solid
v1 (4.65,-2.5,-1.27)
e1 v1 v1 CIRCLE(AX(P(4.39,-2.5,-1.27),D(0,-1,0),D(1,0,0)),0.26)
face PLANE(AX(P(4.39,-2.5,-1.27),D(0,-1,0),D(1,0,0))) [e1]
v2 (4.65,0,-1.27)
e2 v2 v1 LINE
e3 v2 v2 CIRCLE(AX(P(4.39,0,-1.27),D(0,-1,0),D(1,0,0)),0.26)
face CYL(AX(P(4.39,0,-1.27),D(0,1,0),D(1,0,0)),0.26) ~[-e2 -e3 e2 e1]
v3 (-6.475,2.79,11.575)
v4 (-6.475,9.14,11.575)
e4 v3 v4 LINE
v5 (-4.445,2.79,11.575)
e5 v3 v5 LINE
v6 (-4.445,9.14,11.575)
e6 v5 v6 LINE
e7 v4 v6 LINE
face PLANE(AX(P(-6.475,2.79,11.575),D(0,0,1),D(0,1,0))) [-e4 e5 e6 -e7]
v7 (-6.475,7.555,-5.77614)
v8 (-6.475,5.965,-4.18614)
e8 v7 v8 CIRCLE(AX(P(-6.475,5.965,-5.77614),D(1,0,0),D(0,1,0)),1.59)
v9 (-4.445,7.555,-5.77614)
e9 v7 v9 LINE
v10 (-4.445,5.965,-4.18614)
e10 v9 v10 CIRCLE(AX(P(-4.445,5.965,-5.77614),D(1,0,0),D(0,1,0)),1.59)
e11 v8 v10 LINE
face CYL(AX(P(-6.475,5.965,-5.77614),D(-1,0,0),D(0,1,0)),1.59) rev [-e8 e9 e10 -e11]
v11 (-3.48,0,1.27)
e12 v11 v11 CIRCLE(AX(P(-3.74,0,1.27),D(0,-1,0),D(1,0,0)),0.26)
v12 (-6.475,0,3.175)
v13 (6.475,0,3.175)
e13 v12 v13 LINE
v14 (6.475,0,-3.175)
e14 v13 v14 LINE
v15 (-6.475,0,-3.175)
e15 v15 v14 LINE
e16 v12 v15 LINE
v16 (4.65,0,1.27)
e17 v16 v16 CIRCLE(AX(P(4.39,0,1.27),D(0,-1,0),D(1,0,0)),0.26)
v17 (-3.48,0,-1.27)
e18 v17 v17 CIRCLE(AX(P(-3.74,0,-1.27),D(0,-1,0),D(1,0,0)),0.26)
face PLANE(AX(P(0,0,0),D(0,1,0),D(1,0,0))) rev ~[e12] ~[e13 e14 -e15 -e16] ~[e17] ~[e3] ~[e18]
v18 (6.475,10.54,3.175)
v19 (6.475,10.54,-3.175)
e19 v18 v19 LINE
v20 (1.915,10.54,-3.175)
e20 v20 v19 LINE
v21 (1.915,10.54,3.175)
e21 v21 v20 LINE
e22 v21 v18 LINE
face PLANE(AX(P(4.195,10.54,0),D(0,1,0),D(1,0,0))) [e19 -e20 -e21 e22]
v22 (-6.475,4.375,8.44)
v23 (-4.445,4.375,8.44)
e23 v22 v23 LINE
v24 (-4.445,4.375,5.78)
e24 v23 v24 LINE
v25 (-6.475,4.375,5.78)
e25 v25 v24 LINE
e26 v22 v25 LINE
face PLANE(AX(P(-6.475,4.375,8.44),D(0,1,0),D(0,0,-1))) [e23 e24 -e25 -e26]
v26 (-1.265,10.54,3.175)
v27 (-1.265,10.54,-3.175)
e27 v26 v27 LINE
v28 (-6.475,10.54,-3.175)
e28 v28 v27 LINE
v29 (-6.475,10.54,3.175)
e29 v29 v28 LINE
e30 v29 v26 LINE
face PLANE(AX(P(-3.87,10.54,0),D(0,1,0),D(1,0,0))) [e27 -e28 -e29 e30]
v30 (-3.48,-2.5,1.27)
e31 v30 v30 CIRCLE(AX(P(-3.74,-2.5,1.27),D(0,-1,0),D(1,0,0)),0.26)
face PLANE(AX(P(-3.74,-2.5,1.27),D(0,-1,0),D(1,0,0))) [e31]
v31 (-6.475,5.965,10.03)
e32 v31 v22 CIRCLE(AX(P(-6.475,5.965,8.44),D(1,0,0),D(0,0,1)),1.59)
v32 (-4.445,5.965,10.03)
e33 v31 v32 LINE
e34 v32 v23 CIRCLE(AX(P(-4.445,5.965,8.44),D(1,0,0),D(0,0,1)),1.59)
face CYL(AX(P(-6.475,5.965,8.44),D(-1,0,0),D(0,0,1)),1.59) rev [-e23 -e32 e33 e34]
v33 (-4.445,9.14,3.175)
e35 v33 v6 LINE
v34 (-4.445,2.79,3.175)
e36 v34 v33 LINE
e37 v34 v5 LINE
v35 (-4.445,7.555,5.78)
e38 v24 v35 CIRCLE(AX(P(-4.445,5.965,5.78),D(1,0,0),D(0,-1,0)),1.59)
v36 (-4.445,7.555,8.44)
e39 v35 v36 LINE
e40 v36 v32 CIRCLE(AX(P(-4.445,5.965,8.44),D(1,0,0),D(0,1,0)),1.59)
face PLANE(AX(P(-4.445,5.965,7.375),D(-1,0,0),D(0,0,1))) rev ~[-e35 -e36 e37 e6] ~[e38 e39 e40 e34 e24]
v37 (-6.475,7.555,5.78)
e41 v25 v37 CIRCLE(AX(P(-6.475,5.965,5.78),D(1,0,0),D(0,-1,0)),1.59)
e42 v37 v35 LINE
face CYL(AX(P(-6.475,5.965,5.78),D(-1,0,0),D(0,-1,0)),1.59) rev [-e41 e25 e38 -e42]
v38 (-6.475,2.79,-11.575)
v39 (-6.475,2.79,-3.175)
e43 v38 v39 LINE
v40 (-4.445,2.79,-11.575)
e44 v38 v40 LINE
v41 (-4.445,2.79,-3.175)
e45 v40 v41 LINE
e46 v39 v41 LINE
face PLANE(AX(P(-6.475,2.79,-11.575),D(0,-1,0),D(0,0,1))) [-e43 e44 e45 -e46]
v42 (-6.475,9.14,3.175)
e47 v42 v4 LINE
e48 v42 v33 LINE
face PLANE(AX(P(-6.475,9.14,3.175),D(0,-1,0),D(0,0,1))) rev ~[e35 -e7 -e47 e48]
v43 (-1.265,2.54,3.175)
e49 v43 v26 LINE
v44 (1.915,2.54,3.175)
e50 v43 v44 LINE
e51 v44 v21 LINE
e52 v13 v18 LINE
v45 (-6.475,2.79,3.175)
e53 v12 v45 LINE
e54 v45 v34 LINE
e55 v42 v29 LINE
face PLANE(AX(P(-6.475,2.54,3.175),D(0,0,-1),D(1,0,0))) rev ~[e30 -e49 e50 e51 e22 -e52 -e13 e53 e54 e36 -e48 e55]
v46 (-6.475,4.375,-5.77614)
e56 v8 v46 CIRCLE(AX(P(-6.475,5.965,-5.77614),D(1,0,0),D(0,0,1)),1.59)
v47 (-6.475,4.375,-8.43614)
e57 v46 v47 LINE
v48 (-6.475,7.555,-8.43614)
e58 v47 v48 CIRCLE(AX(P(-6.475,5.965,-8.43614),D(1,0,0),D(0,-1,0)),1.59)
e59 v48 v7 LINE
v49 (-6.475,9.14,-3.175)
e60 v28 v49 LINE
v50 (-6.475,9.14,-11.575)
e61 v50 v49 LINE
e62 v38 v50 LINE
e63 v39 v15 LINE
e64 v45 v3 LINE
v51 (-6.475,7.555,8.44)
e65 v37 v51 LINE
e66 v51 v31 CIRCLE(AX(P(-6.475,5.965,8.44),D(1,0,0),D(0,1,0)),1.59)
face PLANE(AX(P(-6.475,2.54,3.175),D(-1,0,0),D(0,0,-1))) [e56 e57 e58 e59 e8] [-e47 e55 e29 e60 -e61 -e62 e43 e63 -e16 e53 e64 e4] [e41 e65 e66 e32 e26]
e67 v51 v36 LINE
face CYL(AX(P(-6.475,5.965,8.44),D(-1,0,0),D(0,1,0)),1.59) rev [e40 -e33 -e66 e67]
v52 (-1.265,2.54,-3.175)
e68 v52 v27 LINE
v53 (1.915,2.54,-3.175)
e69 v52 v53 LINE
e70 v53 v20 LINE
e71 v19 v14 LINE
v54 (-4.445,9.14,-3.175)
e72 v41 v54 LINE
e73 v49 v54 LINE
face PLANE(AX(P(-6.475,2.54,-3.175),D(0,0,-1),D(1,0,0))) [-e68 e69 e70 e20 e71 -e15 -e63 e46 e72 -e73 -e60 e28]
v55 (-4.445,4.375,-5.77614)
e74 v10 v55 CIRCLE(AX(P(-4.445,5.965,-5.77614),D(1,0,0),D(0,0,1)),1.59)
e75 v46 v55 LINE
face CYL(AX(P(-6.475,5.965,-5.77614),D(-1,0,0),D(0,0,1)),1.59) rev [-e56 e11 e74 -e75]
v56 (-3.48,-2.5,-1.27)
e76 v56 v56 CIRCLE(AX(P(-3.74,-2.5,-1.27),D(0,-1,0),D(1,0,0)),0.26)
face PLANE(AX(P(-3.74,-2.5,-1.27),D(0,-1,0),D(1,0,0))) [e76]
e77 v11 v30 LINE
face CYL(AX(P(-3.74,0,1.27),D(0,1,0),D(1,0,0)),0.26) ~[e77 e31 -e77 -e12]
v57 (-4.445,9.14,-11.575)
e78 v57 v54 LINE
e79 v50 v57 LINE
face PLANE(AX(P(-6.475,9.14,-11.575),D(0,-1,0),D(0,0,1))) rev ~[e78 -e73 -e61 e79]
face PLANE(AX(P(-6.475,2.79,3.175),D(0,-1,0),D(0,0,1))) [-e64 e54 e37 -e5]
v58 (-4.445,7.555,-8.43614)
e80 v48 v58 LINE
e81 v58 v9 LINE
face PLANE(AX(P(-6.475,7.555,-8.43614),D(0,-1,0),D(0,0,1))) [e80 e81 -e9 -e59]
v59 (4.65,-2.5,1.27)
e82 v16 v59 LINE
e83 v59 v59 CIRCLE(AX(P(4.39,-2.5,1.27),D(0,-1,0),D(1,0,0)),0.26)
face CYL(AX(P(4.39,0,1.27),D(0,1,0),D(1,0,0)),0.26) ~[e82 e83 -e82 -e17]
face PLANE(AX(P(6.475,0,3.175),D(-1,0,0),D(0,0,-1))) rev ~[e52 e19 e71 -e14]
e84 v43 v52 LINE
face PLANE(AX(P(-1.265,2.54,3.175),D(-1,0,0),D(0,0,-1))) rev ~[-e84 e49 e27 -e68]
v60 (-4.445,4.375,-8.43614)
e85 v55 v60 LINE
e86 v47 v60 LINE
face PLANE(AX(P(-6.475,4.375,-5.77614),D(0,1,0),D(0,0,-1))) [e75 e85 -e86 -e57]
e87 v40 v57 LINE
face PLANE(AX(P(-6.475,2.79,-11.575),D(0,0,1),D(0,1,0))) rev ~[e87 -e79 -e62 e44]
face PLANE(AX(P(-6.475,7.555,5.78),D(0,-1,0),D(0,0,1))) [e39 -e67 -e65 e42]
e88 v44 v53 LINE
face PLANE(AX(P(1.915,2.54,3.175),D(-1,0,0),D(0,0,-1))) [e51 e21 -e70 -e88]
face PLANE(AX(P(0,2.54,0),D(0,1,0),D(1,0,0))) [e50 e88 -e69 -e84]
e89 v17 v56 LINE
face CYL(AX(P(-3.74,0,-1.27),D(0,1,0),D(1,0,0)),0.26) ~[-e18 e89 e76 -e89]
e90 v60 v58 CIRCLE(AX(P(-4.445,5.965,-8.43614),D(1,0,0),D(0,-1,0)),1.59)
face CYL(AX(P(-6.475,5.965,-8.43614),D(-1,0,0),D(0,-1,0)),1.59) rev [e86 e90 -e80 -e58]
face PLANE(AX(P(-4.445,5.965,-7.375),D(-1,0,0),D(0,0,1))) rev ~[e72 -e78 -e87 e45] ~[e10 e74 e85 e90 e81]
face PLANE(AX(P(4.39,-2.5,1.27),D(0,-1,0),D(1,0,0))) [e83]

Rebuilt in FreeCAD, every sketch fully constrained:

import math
import FreeCAD as App
import Part
import Sketcher
from FreeCAD import Vector
Q = App.Units.Quantity

doc = App.newDocument("Part")
body = doc.addObject("PartDesign::Body", "Body")

sketch1 = body.newObject("Sketcher::SketchObject", "Sketch")
sketch1.AttachmentSupport = (doc.getObject("XZ_Plane"), [""])
sketch1.MapMode = "FlatFace"
sketch1.addGeometry(Part.LineSegment(Vector(-6, -3, 0), Vector(-6, 3, 0)), False)
sketch1.addGeometry(Part.LineSegment(Vector(-6, 3, 0), Vector(6, 3, 0)), False)
sketch1.addGeometry(Part.LineSegment(Vector(6, 3, 0), Vector(6, -3, 0)), False)
sketch1.addGeometry(Part.LineSegment(Vector(6, -3, 0), Vector(-6, -3, 0)), False)
sketch1.addConstraint(Sketcher.Constraint("Coincident", 0, 2, 1, 1))
sketch1.addConstraint(Sketcher.Constraint("Coincident", 1, 2, 2, 1))
sketch1.addConstraint(Sketcher.Constraint("Coincident", 2, 2, 3, 1))
sketch1.addConstraint(Sketcher.Constraint("Coincident", 3, 2, 0, 1))
sketch1.addConstraint(Sketcher.Constraint("Vertical", 0))
sketch1.addConstraint(Sketcher.Constraint("Horizontal", 1))
sketch1.addConstraint(Sketcher.Constraint("Vertical", 2))
sketch1.addConstraint(Sketcher.Constraint("Horizontal", 3))
sketch1.addConstraint(Sketcher.Constraint("Symmetric", 0, 2, 2, 2, -1, 1))
sketch1.addConstraint(Sketcher.Constraint("DistanceX", 1, 1, 1, 2, Q("12.95 mm")))
sketch1.addConstraint(Sketcher.Constraint("DistanceY", 0, 1, 0, 2, Q("6.35 mm")))
pad1 = body.newObject("PartDesign::Pad", "Pad")
pad1.Profile = sketch1
pad1.Length = 2.54
pad1.Reversed = True

sketch2 = body.newObject("Sketcher::SketchObject", "Sketch001")
sketch2.AttachmentSupport = (doc.getObject("XZ_Plane"), [""])
sketch2.MapMode = "FlatFace"
sketch2.AttachmentOffset = App.Placement(Vector(0, 0, -2.54), App.Rotation())
sketch2.addGeometry(Part.LineSegment(Vector(-6.5, -3.2, 0), Vector(-6.5, 3.2, 0)), False)
sketch2.addGeometry(Part.LineSegment(Vector(-6.5, 3.2, 0), Vector(-1.3, 3.2, 0)), False)
sketch2.addGeometry(Part.LineSegment(Vector(-1.3, 3.2, 0), Vector(-1.3, -3.2, 0)), False)
sketch2.addGeometry(Part.LineSegment(Vector(-1.3, -3.2, 0), Vector(-6.5, -3.2, 0)), False)
sketch2.addGeometry(Part.LineSegment(Vector(1.9, -3.2, 0), Vector(1.9, 3.2, 0)), False)
sketch2.addGeometry(Part.LineSegment(Vector(1.9, 3.2, 0), Vector(6.5, 3.2, 0)), False)
sketch2.addGeometry(Part.LineSegment(Vector(6.5, 3.2, 0), Vector(6.5, -3.2, 0)), False)
sketch2.addGeometry(Part.LineSegment(Vector(6.5, -3.2, 0), Vector(1.9, -3.2, 0)), False)
sketch2.addConstraint(Sketcher.Constraint("Coincident", 0, 2, 1, 1))
sketch2.addConstraint(Sketcher.Constraint("Coincident", 1, 2, 2, 1))
sketch2.addConstraint(Sketcher.Constraint("Coincident", 2, 2, 3, 1))
sketch2.addConstraint(Sketcher.Constraint("Coincident", 3, 2, 0, 1))
sketch2.addConstraint(Sketcher.Constraint("Coincident", 4, 2, 5, 1))
sketch2.addConstraint(Sketcher.Constraint("Coincident", 5, 2, 6, 1))
sketch2.addConstraint(Sketcher.Constraint("Coincident", 6, 2, 7, 1))
sketch2.addConstraint(Sketcher.Constraint("Coincident", 7, 2, 4, 1))
sketch2.addConstraint(Sketcher.Constraint("Vertical", 0))
sketch2.addConstraint(Sketcher.Constraint("Horizontal", 1))
sketch2.addConstraint(Sketcher.Constraint("Vertical", 2))
sketch2.addConstraint(Sketcher.Constraint("Horizontal", 3))
sketch2.addConstraint(Sketcher.Constraint("Vertical", 4))
sketch2.addConstraint(Sketcher.Constraint("Horizontal", 5))
sketch2.addConstraint(Sketcher.Constraint("Vertical", 6))
sketch2.addConstraint(Sketcher.Constraint("Horizontal", 7))
sketch2.addConstraint(Sketcher.Constraint("Symmetric", 3, 2, 5, 2, -1, 1))
sketch2.addConstraint(Sketcher.Constraint("Horizontal", 1, 2, 4, 2))
sketch2.addConstraint(Sketcher.Constraint("Horizontal", 3, 2, 6, 2))
sketch2.addConstraint(Sketcher.Constraint("DistanceX", 1, 1, 1, 2, Q("5.21 mm")))
sketch2.addConstraint(Sketcher.Constraint("DistanceX", 5, 1, 5, 2, Q("4.56 mm")))
sketch2.addConstraint(Sketcher.Constraint("DistanceY", 0, 1, 0, 2, Q("6.35 mm")))
sketch2.addConstraint(Sketcher.Constraint("DistanceX", 1, 2, 4, 2, Q("3.18 mm")))
pad2 = body.newObject("PartDesign::Pad", "Pad001")
pad2.Profile = sketch2
pad2.Length = 8
pad2.Reversed = True

sketch3 = body.newObject("Sketcher::SketchObject", "Sketch002")
sketch3.AttachmentSupport = (doc.getObject("XZ_Plane"), [""])
sketch3.MapMode = "FlatFace"
sketch3.addGeometry(Part.Circle(Vector(-3.74, -1.27, 0), Vector(0, 0, 1), 0.26), False)
sketch3.addGeometry(Part.Circle(Vector(-3.74, 1.27, 0), Vector(0, 0, 1), 0.26), False)
sketch3.addGeometry(Part.Circle(Vector(4.39, -1.27, 0), Vector(0, 0, 1), 0.26), False)
sketch3.addGeometry(Part.Circle(Vector(4.39, 1.27, 0), Vector(0, 0, 1), 0.26), False)
sketch3.addConstraint(Sketcher.Constraint("Equal", 0, 1))
sketch3.addConstraint(Sketcher.Constraint("Equal", 1, 2))
sketch3.addConstraint(Sketcher.Constraint("Equal", 2, 3))
sketch3.addConstraint(Sketcher.Constraint("Symmetric", 0, 3, 1, 3, -1))
sketch3.addConstraint(Sketcher.Constraint("Symmetric", 2, 3, 3, 3, -1))
sketch3.addConstraint(Sketcher.Constraint("Horizontal", 0, 3, 2, 3))
sketch3.addConstraint(Sketcher.Constraint("Diameter", 0, Q("0.52 mm")))
sketch3.addConstraint(Sketcher.Constraint("DistanceX", 0, 3, -1, 1, Q("3.74 mm")))
sketch3.addConstraint(Sketcher.Constraint("DistanceY", 0, 3, -1, 1, Q("1.27 mm")))
sketch3.addConstraint(Sketcher.Constraint("DistanceX", -1, 1, 2, 3, Q("4.39 mm")))
pad3 = body.newObject("PartDesign::Pad", "Pad002")
pad3.Profile = sketch3
pad3.Length = 2.5

sketch4 = body.newObject("Sketcher::SketchObject", "Sketch003")
sketch4.AttachmentSupport = (doc.getObject("YZ_Plane"), [""])
sketch4.MapMode = "FlatFace"
sketch4.AttachmentOffset = App.Placement(Vector(0, 0, -6.475), App.Rotation())
sketch4.addGeometry(Part.LineSegment(Vector(9.1, -11.6, 0), Vector(2.8, -11.6, 0)), False)
sketch4.addGeometry(Part.LineSegment(Vector(2.8, -11.6, 0), Vector(2.8, -3.2, 0)), False)
sketch4.addGeometry(Part.LineSegment(Vector(2.8, -3.2, 0), Vector(9.1, -3.2, 0)), False)
sketch4.addGeometry(Part.LineSegment(Vector(9.1, -3.2, 0), Vector(9.1, -11.6, 0)), False)
sketch4.addGeometry(Part.LineSegment(Vector(4.4, -5.8, 0), Vector(4.4, -8.4, 0)), False)
sketch4.addGeometry(Part.ArcOfCircle(Part.Circle(Vector(6, -8.4, 0), Vector(0, 0, 1), 1.6), math.radians(180), math.radians(360)), False)
sketch4.addGeometry(Part.LineSegment(Vector(7.6, -8.4, 0), Vector(7.6, -5.8, 0)), False)
sketch4.addGeometry(Part.ArcOfCircle(Part.Circle(Vector(6, -5.8, 0), Vector(0, 0, 1), 1.6), math.radians(0), math.radians(90)), False)
sketch4.addGeometry(Part.ArcOfCircle(Part.Circle(Vector(6, -5.8, 0), Vector(0, 0, 1), 1.6), math.radians(90), math.radians(180)), False)
sketch4.addGeometry(Part.LineSegment(Vector(9.1, 3.2, 0), Vector(2.8, 3.2, 0)), False)
sketch4.addGeometry(Part.LineSegment(Vector(2.8, 3.2, 0), Vector(2.8, 11.6, 0)), False)
sketch4.addGeometry(Part.LineSegment(Vector(2.8, 11.6, 0), Vector(9.1, 11.6, 0)), False)
sketch4.addGeometry(Part.LineSegment(Vector(9.1, 11.6, 0), Vector(9.1, 3.2, 0)), False)
sketch4.addGeometry(Part.LineSegment(Vector(4.4, 8.4, 0), Vector(4.4, 5.8, 0)), False)
sketch4.addGeometry(Part.ArcOfCircle(Part.Circle(Vector(6, 5.8, 0), Vector(0, 0, 1), 1.6), math.radians(180), math.radians(360)), False)
sketch4.addGeometry(Part.LineSegment(Vector(7.6, 5.8, 0), Vector(7.6, 8.4, 0)), False)
sketch4.addGeometry(Part.ArcOfCircle(Part.Circle(Vector(6, 8.4, 0), Vector(0, 0, 1), 1.6), math.radians(0), math.radians(90)), False)
sketch4.addGeometry(Part.ArcOfCircle(Part.Circle(Vector(6, 8.4, 0), Vector(0, 0, 1), 1.6), math.radians(90), math.radians(180)), False)
sketch4.addConstraint(Sketcher.Constraint("Coincident", 0, 2, 1, 1))
sketch4.addConstraint(Sketcher.Constraint("Coincident", 1, 2, 2, 1))
sketch4.addConstraint(Sketcher.Constraint("Coincident", 2, 2, 3, 1))
sketch4.addConstraint(Sketcher.Constraint("Coincident", 3, 2, 0, 1))
sketch4.addConstraint(Sketcher.Constraint("Tangent", 4, 2, 5, 1))
sketch4.addConstraint(Sketcher.Constraint("Tangent", 5, 2, 6, 1))
sketch4.addConstraint(Sketcher.Constraint("Tangent", 6, 2, 7, 1))
sketch4.addConstraint(Sketcher.Constraint("Tangent", 7, 2, 8, 1))
sketch4.addConstraint(Sketcher.Constraint("Tangent", 8, 2, 4, 1))
sketch4.addConstraint(Sketcher.Constraint("Coincident", 9, 2, 10, 1))
sketch4.addConstraint(Sketcher.Constraint("Coincident", 10, 2, 11, 1))
sketch4.addConstraint(Sketcher.Constraint("Coincident", 11, 2, 12, 1))
sketch4.addConstraint(Sketcher.Constraint("Coincident", 12, 2, 9, 1))
sketch4.addConstraint(Sketcher.Constraint("Tangent", 13, 2, 14, 1))
sketch4.addConstraint(Sketcher.Constraint("Tangent", 14, 2, 15, 1))
sketch4.addConstraint(Sketcher.Constraint("Tangent", 15, 2, 16, 1))
sketch4.addConstraint(Sketcher.Constraint("Tangent", 16, 2, 17, 1))
sketch4.addConstraint(Sketcher.Constraint("Tangent", 17, 2, 13, 1))
sketch4.addConstraint(Sketcher.Constraint("Horizontal", 0))
sketch4.addConstraint(Sketcher.Constraint("Vertical", 1))
sketch4.addConstraint(Sketcher.Constraint("Horizontal", 2))
sketch4.addConstraint(Sketcher.Constraint("Vertical", 3))
sketch4.addConstraint(Sketcher.Constraint("Vertical", 4))
sketch4.addConstraint(Sketcher.Constraint("Vertical", 6))
sketch4.addConstraint(Sketcher.Constraint("Horizontal", 9))
sketch4.addConstraint(Sketcher.Constraint("Vertical", 10))
sketch4.addConstraint(Sketcher.Constraint("Horizontal", 11))
sketch4.addConstraint(Sketcher.Constraint("Vertical", 12))
sketch4.addConstraint(Sketcher.Constraint("Vertical", 13))
sketch4.addConstraint(Sketcher.Constraint("Vertical", 15))
sketch4.addConstraint(Sketcher.Constraint("Equal", 5, 7))
sketch4.addConstraint(Sketcher.Constraint("Equal", 8, 14))
sketch4.addConstraint(Sketcher.Constraint("Equal", 14, 16))
sketch4.addConstraint(Sketcher.Constraint("Symmetric", 1, 2, 9, 2, -1))
sketch4.addConstraint(Sketcher.Constraint("Symmetric", 3, 2, 11, 2, -1))
sketch4.addConstraint(Sketcher.Constraint("Vertical", 8, 3, 14, 3))
sketch4.addConstraint(Sketcher.Constraint("Vertical", 17, 3, 7, 2))
sketch4.addConstraint(Sketcher.Constraint("Vertical", 7, 2, 16, 2))
sketch4.addConstraint(Sketcher.Constraint("Equal", 6, 13))
sketch4.addConstraint(Sketcher.Constraint("Radius", 5, Q("1.59 mm")))
sketch4.addConstraint(Sketcher.Constraint("DistanceY", 1, 1, 1, 2, Q("8.4 mm")))
sketch4.addConstraint(Sketcher.Constraint("DistanceX", 0, 2, 0, 1, Q("6.35 mm")))
sketch4.addConstraint(Sketcher.Constraint("DistanceY", 4, 2, 4, 1, Q("2.66 mm")))
sketch4.addConstraint(Sketcher.Constraint("DistanceY", -1, 1, 14, 3, Q("5.78 mm")))
sketch4.addConstraint(Sketcher.Constraint("DistanceX", -1, 1, 0, 2, Q("2.79 mm")))
sketch4.addConstraint(Sketcher.Constraint("DistanceY", 1, 2, 9, 2, Q("6.35 mm")))
sketch4.addConstraint(Sketcher.Constraint("DistanceX", -1, 1, 5, 3, Q("5.965 mm")))
sketch4.addConstraint(Sketcher.Constraint("DistanceY", 5, 3, -1, 1, Q("8.43614 mm")))
pad4 = body.newObject("PartDesign::Pad", "Pad003")
pad4.Profile = sketch4
pad4.Length = 2.03

doc.recompute()
